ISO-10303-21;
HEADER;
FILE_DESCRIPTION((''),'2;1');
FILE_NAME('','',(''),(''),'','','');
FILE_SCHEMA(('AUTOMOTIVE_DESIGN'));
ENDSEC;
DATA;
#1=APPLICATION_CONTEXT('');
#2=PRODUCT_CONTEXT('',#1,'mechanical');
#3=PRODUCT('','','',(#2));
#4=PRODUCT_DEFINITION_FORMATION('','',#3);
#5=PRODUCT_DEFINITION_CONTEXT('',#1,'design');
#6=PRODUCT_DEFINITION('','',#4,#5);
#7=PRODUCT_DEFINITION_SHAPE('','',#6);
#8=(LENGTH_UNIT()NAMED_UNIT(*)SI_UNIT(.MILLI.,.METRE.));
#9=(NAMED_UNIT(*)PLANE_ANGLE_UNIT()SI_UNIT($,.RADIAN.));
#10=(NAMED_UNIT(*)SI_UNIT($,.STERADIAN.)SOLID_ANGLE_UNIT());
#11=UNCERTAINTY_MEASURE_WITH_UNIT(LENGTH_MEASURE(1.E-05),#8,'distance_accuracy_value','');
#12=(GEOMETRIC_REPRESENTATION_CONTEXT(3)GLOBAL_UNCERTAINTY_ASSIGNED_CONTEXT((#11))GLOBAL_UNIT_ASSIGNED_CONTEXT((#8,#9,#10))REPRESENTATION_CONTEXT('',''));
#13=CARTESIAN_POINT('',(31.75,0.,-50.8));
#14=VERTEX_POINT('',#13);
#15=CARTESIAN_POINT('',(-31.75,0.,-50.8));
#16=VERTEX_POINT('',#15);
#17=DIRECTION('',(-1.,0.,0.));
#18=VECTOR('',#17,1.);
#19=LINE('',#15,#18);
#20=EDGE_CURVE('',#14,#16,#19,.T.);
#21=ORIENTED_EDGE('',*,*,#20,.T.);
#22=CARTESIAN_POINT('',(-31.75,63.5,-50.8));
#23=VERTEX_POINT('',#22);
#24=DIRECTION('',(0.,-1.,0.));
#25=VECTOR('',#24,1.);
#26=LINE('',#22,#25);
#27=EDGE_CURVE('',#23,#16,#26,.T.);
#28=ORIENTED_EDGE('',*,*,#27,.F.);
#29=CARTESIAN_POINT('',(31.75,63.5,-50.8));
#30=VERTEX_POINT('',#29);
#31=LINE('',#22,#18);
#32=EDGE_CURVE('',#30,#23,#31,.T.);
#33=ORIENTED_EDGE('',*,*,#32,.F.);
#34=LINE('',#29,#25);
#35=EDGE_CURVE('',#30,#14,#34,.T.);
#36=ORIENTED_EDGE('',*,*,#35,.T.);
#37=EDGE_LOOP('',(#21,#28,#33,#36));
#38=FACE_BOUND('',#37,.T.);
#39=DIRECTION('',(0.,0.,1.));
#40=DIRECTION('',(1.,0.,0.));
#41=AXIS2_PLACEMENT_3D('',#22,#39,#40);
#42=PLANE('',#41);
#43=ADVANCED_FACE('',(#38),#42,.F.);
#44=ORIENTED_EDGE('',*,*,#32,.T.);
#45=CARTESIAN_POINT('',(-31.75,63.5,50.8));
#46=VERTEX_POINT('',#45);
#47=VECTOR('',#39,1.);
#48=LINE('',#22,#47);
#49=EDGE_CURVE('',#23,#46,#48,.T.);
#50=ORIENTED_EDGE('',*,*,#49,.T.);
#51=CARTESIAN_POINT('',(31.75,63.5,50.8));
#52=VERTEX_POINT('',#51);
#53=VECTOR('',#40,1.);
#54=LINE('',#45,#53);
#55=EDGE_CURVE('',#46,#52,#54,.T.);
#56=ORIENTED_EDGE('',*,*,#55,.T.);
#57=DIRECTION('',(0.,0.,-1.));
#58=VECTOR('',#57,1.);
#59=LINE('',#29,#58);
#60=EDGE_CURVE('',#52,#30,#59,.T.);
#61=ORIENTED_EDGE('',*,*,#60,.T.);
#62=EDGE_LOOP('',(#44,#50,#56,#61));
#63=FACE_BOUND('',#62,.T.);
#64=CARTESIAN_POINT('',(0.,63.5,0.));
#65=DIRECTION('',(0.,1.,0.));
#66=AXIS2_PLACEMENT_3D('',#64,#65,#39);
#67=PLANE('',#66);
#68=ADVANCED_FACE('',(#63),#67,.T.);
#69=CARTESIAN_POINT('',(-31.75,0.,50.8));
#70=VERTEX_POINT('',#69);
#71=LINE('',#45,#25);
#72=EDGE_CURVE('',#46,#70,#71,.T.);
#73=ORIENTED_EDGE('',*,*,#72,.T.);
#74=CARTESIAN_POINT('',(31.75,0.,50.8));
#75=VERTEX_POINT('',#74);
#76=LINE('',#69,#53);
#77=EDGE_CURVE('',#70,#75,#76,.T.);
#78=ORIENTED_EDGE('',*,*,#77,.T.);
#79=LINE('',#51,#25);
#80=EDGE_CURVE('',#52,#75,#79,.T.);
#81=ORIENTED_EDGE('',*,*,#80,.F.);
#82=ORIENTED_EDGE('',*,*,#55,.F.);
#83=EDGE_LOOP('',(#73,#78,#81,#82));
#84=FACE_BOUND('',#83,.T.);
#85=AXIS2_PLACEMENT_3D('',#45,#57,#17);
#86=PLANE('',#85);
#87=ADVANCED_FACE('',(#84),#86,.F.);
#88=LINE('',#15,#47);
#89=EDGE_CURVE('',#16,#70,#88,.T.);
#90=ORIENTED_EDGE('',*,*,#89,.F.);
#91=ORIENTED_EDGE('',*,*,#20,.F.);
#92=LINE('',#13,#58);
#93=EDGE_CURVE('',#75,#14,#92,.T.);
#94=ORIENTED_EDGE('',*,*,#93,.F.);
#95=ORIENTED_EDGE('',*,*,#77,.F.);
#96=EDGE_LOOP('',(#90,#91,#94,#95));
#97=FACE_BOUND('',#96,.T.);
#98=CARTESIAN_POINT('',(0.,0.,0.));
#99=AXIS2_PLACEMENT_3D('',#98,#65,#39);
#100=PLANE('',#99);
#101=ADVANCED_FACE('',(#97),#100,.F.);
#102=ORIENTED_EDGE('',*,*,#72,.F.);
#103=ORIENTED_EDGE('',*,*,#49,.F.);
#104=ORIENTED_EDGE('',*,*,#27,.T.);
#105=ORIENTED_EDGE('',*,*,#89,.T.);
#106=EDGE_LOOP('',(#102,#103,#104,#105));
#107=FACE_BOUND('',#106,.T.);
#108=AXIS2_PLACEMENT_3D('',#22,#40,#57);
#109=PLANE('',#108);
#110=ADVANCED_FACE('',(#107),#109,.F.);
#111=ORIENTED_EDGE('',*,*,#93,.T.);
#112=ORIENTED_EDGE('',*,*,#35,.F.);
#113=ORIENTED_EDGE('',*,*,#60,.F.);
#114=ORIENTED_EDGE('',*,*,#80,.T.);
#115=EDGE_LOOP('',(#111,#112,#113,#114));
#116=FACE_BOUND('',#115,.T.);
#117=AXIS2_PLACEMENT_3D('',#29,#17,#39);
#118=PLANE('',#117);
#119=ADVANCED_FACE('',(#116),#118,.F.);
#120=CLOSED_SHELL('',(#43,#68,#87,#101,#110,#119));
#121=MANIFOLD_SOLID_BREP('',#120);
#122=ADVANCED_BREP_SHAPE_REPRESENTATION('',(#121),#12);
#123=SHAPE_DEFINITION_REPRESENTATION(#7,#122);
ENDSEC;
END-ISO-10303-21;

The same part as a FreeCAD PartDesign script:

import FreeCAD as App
import Part
import Sketcher

V = App.Vector
Q = App.Units.Quantity

doc = App.newDocument("Part")
body = doc.addObject("PartDesign::Body", "Body")

# Sketch on XZ plane
sketch1 = body.newObject("Sketcher::SketchObject", "Sketch")
sketch1.AttachmentSupport = (doc.getObject("XZ_Plane"), [""])
sketch1.MapMode = "FlatFace"
sketch1.addGeometry(Part.LineSegment(V(-31.75, -50.8, 0), V(-31.75, 50.8, 0)), False)
sketch1.addGeometry(Part.LineSegment(V(-31.75, 50.8, 0), V(31.75, 50.8, 0)), False)
sketch1.addGeometry(Part.LineSegment(V(31.75, 50.8, 0), V(31.75, -50.8, 0)), False)
sketch1.addGeometry(Part.LineSegment(V(31.75, -50.8, 0), V(-31.75, -50.8, 0)), False)
sketch1.addConstraint(Sketcher.Constraint("Coincident", 0, 2, 1, 1))
sketch1.addConstraint(Sketcher.Constraint("Coincident", 1, 2, 2, 1))
sketch1.addConstraint(Sketcher.Constraint("Coincident", 2, 2, 3, 1))
sketch1.addConstraint(Sketcher.Constraint("Coincident", 3, 2, 0, 1))
sketch1.addConstraint(Sketcher.Constraint("Vertical", 0))
sketch1.addConstraint(Sketcher.Constraint("Horizontal", 1))
sketch1.addConstraint(Sketcher.Constraint("Vertical", 2))
sketch1.addConstraint(Sketcher.Constraint("Horizontal", 3))
sketch1.addConstraint(Sketcher.Constraint("Symmetric", 0, 2, 2, 2, -1, 1))
sketch1.addConstraint(Sketcher.Constraint("DistanceY", 0, 1, 0, 2, Q("4 in")))
sketch1.addConstraint(Sketcher.Constraint("DistanceX", 1, 1, 1, 2, Q("2.5 in")))
pad1 = body.newObject("PartDesign::Pad", "Pad")
pad1.Profile = sketch1
pad1.Length = Q("2.5 in")
pad1.Reversed = True

doc.recompute()
